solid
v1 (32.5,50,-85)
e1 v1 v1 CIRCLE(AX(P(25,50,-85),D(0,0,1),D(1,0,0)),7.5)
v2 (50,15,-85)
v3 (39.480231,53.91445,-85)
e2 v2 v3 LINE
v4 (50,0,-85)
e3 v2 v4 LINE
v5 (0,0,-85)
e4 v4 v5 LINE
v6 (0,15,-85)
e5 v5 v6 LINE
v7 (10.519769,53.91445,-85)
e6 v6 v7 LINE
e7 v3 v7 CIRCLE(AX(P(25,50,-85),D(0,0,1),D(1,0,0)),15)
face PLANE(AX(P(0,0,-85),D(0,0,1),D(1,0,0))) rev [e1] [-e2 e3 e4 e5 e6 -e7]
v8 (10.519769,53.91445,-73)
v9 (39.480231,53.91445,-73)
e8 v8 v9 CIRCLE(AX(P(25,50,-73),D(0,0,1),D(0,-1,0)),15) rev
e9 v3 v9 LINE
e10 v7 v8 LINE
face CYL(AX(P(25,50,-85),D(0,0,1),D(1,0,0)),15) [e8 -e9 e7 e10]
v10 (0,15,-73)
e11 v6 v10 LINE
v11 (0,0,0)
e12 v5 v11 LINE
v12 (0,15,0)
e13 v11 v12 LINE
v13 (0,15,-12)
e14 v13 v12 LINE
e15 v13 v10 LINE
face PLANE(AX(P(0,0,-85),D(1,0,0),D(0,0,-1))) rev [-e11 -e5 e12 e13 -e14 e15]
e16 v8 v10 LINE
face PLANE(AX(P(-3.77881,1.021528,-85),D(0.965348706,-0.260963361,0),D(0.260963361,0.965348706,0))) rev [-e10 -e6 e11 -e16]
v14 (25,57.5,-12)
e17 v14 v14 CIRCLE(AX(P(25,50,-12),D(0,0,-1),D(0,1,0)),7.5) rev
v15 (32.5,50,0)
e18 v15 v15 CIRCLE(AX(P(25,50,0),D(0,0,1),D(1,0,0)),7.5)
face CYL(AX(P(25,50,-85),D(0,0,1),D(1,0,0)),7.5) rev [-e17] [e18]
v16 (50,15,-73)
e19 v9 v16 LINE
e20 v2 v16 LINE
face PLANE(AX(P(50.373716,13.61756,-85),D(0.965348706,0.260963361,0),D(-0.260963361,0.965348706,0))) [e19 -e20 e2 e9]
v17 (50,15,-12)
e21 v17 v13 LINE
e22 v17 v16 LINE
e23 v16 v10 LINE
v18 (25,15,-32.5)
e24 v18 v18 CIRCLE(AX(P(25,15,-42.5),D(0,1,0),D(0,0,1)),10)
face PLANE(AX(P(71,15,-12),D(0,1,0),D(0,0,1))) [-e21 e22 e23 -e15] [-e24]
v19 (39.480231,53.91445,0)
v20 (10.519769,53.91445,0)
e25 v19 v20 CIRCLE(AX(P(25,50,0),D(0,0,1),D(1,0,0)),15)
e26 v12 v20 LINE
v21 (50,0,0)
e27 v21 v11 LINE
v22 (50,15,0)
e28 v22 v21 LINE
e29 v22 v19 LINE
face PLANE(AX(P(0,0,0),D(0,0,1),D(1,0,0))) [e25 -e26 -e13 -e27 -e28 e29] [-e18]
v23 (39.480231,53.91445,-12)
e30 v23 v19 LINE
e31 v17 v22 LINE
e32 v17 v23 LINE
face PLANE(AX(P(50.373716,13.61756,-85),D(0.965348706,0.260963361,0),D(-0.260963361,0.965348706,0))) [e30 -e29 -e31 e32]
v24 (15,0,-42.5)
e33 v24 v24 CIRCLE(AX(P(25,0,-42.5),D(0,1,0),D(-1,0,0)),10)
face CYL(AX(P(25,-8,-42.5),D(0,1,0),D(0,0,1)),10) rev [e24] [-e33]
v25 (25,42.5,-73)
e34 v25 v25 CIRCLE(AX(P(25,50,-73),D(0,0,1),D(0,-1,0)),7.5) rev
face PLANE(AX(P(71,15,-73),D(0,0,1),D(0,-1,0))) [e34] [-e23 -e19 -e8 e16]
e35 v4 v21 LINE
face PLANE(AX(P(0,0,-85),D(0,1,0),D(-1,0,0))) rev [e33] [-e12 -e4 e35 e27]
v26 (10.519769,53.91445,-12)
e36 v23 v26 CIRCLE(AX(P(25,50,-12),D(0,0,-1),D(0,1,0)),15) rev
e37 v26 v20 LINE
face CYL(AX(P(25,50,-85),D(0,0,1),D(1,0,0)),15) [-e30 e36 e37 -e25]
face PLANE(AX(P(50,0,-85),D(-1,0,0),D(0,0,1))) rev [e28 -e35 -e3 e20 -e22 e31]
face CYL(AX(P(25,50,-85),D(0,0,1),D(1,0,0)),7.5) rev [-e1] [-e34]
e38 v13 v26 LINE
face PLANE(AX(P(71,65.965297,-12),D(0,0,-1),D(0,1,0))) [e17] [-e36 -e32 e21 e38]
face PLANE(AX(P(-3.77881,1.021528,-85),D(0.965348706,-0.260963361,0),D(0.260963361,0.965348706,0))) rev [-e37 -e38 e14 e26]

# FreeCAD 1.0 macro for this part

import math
import FreeCAD as App
import Part
import Sketcher

V = App.Vector
Q = App.Units.Quantity


def add_polygon(sketch, points):
    """Adds a closed chain of lines whose ends are joined by coincident constraints."""
    first, n = sketch.GeometryCount, len(points)
    for a, b in zip(points, points[1:] + points[:1]):
        sketch.addGeometry(Part.LineSegment(App.Vector(*a, 0), App.Vector(*b, 0)), False)
    for i in range(n):
        sketch.addConstraint(Sketcher.Constraint("Coincident", first + i, 2, first + (i + 1) % n, 1))

doc = App.newDocument("Part")
body = doc.addObject("PartDesign::Body", "Body")

sketch1 = body.newObject("Sketcher::SketchObject", "Sketch")
sketch1.AttachmentSupport = (doc.getObject("XY_Plane"), [""])
sketch1.MapMode = "FlatFace"
sketch1.addGeometry(Part.LineSegment(V(0, 15, 0), V(0, 0, 0)), False)
sketch1.addGeometry(Part.LineSegment(V(0, 0, 0), V(50, 0, 0)), False)
sketch1.addGeometry(Part.LineSegment(V(50, 0, 0), V(50, 15, 0)), False)
sketch1.addGeometry(Part.LineSegment(V(50, 15, 0), V(39, 54, 0)), False)
sketch1.addGeometry(Part.ArcOfCircle(Part.Circle(V(25, 50, 0), V(0, 0, 1), 15), math.radians(15), math.radians(165)), False)
sketch1.addGeometry(Part.LineSegment(V(11, 54, 0), V(0, 15, 0)), False)
sketch1.addGeometry(Part.Circle(V(25, 50, 0), V(0, 0, 1), 8), False)
sketch1.addConstraint(Sketcher.Constraint("Coincident", 0, 2, 1, 1))
sketch1.addConstraint(Sketcher.Constraint("Coincident", 1, 2, 2, 1))
sketch1.addConstraint(Sketcher.Constraint("Coincident", 2, 2, 3, 1))
sketch1.addConstraint(Sketcher.Constraint("Tangent", 3, 2, 4, 1))
sketch1.addConstraint(Sketcher.Constraint("Tangent", 4, 2, 5, 1))
sketch1.addConstraint(Sketcher.Constraint("Coincident", 5, 2, 0, 1))
sketch1.addConstraint(Sketcher.Constraint("Vertical", 0))
sketch1.addConstraint(Sketcher.Constraint("Horizontal", 1))
sketch1.addConstraint(Sketcher.Constraint("Vertical", 2))
sketch1.addConstraint(Sketcher.Constraint("Coincident", 0, 2, -1, 1))
sketch1.addConstraint(Sketcher.Constraint("Coincident", 6, 3, 4, 3))
sketch1.addConstraint(Sketcher.Constraint("Horizontal", 3, 2, 4, 2))
sketch1.addConstraint(Sketcher.Constraint("Horizontal", 2, 2, 5, 2))
sketch1.addConstraint(Sketcher.Constraint("Diameter", 6, Q("15 mm")))
sketch1.addConstraint(Sketcher.Constraint("Radius", 4, Q("15 mm")))
sketch1.addConstraint(Sketcher.Constraint("DistanceX", 1, 1, 1, 2, Q("50 mm")))
sketch1.addConstraint(Sketcher.Constraint("DistanceY", 0, 2, 0, 1, Q("15 mm")))
sketch1.addConstraint(Sketcher.Constraint("DistanceY", -1, 1, 4, 3, Q("50 mm")))
pad1 = body.newObject("PartDesign::Pad", "Pad")
pad1.Profile = sketch1
pad1.Length = 85
pad1.Reversed = True

sketch2 = body.newObject("Sketcher::SketchObject", "Sketch001")
sketch2.AttachmentSupport = (doc.getObject("YZ_Plane"), [""])
sketch2.MapMode = "FlatFace"
add_polygon(sketch2, [(66, -12), (15, -12), (15, -73), (66, -73)])
sketch2.addConstraint(Sketcher.Constraint("Horizontal", 0))
sketch2.addConstraint(Sketcher.Constraint("Vertical", 1))
sketch2.addConstraint(Sketcher.Constraint("Horizontal", 2))
sketch2.addConstraint(Sketcher.Constraint("Vertical", 3))
sketch2.addConstraint(Sketcher.Constraint("DistanceY", 1, 2, 1, 1, Q("61 mm")))
sketch2.addConstraint(Sketcher.Constraint("DistanceX", -1, 1, 0, 2, Q("15 mm")))
sketch2.addConstraint(Sketcher.Constraint("DistanceY", 0, 2, -1, 1, Q("12 mm")))
sketch2.addConstraint(Sketcher.Constraint("DistanceX", 0, 2, 0, 1, Q("50.965297 mm")))
pocket1 = body.newObject("PartDesign::Pocket", "Pocket")
pocket1.Profile = sketch2
pocket1.Length = 71
pocket1.Reversed = True

sketch3 = body.newObject("Sketcher::SketchObject", "Sketch002")
sketch3.AttachmentSupport = (doc.getObject("XZ_Plane"), [""])
sketch3.MapMode = "FlatFace"
sketch3.AttachmentOffset = App.Placement(V(0, 0, -15), App.Rotation())
sketch3.addGeometry(Part.Circle(V(25, -42, 0), V(0, 0, 1), 10), False)
sketch3.addConstraint(Sketcher.Constraint("Diameter", 0, Q("20 mm")))
sketch3.addConstraint(Sketcher.Constraint("DistanceX", -1, 1, 0, 3, Q("25 mm")))
sketch3.addConstraint(Sketcher.Constraint("DistanceY", 0, 3, -1, 1, Q("42.5 mm")))
pocket2 = body.newObject("PartDesign::Pocket", "Pocket001")
pocket2.Profile = sketch3
pocket2.Length = 23
pocket2.Reversed = True

doc.recompute()
